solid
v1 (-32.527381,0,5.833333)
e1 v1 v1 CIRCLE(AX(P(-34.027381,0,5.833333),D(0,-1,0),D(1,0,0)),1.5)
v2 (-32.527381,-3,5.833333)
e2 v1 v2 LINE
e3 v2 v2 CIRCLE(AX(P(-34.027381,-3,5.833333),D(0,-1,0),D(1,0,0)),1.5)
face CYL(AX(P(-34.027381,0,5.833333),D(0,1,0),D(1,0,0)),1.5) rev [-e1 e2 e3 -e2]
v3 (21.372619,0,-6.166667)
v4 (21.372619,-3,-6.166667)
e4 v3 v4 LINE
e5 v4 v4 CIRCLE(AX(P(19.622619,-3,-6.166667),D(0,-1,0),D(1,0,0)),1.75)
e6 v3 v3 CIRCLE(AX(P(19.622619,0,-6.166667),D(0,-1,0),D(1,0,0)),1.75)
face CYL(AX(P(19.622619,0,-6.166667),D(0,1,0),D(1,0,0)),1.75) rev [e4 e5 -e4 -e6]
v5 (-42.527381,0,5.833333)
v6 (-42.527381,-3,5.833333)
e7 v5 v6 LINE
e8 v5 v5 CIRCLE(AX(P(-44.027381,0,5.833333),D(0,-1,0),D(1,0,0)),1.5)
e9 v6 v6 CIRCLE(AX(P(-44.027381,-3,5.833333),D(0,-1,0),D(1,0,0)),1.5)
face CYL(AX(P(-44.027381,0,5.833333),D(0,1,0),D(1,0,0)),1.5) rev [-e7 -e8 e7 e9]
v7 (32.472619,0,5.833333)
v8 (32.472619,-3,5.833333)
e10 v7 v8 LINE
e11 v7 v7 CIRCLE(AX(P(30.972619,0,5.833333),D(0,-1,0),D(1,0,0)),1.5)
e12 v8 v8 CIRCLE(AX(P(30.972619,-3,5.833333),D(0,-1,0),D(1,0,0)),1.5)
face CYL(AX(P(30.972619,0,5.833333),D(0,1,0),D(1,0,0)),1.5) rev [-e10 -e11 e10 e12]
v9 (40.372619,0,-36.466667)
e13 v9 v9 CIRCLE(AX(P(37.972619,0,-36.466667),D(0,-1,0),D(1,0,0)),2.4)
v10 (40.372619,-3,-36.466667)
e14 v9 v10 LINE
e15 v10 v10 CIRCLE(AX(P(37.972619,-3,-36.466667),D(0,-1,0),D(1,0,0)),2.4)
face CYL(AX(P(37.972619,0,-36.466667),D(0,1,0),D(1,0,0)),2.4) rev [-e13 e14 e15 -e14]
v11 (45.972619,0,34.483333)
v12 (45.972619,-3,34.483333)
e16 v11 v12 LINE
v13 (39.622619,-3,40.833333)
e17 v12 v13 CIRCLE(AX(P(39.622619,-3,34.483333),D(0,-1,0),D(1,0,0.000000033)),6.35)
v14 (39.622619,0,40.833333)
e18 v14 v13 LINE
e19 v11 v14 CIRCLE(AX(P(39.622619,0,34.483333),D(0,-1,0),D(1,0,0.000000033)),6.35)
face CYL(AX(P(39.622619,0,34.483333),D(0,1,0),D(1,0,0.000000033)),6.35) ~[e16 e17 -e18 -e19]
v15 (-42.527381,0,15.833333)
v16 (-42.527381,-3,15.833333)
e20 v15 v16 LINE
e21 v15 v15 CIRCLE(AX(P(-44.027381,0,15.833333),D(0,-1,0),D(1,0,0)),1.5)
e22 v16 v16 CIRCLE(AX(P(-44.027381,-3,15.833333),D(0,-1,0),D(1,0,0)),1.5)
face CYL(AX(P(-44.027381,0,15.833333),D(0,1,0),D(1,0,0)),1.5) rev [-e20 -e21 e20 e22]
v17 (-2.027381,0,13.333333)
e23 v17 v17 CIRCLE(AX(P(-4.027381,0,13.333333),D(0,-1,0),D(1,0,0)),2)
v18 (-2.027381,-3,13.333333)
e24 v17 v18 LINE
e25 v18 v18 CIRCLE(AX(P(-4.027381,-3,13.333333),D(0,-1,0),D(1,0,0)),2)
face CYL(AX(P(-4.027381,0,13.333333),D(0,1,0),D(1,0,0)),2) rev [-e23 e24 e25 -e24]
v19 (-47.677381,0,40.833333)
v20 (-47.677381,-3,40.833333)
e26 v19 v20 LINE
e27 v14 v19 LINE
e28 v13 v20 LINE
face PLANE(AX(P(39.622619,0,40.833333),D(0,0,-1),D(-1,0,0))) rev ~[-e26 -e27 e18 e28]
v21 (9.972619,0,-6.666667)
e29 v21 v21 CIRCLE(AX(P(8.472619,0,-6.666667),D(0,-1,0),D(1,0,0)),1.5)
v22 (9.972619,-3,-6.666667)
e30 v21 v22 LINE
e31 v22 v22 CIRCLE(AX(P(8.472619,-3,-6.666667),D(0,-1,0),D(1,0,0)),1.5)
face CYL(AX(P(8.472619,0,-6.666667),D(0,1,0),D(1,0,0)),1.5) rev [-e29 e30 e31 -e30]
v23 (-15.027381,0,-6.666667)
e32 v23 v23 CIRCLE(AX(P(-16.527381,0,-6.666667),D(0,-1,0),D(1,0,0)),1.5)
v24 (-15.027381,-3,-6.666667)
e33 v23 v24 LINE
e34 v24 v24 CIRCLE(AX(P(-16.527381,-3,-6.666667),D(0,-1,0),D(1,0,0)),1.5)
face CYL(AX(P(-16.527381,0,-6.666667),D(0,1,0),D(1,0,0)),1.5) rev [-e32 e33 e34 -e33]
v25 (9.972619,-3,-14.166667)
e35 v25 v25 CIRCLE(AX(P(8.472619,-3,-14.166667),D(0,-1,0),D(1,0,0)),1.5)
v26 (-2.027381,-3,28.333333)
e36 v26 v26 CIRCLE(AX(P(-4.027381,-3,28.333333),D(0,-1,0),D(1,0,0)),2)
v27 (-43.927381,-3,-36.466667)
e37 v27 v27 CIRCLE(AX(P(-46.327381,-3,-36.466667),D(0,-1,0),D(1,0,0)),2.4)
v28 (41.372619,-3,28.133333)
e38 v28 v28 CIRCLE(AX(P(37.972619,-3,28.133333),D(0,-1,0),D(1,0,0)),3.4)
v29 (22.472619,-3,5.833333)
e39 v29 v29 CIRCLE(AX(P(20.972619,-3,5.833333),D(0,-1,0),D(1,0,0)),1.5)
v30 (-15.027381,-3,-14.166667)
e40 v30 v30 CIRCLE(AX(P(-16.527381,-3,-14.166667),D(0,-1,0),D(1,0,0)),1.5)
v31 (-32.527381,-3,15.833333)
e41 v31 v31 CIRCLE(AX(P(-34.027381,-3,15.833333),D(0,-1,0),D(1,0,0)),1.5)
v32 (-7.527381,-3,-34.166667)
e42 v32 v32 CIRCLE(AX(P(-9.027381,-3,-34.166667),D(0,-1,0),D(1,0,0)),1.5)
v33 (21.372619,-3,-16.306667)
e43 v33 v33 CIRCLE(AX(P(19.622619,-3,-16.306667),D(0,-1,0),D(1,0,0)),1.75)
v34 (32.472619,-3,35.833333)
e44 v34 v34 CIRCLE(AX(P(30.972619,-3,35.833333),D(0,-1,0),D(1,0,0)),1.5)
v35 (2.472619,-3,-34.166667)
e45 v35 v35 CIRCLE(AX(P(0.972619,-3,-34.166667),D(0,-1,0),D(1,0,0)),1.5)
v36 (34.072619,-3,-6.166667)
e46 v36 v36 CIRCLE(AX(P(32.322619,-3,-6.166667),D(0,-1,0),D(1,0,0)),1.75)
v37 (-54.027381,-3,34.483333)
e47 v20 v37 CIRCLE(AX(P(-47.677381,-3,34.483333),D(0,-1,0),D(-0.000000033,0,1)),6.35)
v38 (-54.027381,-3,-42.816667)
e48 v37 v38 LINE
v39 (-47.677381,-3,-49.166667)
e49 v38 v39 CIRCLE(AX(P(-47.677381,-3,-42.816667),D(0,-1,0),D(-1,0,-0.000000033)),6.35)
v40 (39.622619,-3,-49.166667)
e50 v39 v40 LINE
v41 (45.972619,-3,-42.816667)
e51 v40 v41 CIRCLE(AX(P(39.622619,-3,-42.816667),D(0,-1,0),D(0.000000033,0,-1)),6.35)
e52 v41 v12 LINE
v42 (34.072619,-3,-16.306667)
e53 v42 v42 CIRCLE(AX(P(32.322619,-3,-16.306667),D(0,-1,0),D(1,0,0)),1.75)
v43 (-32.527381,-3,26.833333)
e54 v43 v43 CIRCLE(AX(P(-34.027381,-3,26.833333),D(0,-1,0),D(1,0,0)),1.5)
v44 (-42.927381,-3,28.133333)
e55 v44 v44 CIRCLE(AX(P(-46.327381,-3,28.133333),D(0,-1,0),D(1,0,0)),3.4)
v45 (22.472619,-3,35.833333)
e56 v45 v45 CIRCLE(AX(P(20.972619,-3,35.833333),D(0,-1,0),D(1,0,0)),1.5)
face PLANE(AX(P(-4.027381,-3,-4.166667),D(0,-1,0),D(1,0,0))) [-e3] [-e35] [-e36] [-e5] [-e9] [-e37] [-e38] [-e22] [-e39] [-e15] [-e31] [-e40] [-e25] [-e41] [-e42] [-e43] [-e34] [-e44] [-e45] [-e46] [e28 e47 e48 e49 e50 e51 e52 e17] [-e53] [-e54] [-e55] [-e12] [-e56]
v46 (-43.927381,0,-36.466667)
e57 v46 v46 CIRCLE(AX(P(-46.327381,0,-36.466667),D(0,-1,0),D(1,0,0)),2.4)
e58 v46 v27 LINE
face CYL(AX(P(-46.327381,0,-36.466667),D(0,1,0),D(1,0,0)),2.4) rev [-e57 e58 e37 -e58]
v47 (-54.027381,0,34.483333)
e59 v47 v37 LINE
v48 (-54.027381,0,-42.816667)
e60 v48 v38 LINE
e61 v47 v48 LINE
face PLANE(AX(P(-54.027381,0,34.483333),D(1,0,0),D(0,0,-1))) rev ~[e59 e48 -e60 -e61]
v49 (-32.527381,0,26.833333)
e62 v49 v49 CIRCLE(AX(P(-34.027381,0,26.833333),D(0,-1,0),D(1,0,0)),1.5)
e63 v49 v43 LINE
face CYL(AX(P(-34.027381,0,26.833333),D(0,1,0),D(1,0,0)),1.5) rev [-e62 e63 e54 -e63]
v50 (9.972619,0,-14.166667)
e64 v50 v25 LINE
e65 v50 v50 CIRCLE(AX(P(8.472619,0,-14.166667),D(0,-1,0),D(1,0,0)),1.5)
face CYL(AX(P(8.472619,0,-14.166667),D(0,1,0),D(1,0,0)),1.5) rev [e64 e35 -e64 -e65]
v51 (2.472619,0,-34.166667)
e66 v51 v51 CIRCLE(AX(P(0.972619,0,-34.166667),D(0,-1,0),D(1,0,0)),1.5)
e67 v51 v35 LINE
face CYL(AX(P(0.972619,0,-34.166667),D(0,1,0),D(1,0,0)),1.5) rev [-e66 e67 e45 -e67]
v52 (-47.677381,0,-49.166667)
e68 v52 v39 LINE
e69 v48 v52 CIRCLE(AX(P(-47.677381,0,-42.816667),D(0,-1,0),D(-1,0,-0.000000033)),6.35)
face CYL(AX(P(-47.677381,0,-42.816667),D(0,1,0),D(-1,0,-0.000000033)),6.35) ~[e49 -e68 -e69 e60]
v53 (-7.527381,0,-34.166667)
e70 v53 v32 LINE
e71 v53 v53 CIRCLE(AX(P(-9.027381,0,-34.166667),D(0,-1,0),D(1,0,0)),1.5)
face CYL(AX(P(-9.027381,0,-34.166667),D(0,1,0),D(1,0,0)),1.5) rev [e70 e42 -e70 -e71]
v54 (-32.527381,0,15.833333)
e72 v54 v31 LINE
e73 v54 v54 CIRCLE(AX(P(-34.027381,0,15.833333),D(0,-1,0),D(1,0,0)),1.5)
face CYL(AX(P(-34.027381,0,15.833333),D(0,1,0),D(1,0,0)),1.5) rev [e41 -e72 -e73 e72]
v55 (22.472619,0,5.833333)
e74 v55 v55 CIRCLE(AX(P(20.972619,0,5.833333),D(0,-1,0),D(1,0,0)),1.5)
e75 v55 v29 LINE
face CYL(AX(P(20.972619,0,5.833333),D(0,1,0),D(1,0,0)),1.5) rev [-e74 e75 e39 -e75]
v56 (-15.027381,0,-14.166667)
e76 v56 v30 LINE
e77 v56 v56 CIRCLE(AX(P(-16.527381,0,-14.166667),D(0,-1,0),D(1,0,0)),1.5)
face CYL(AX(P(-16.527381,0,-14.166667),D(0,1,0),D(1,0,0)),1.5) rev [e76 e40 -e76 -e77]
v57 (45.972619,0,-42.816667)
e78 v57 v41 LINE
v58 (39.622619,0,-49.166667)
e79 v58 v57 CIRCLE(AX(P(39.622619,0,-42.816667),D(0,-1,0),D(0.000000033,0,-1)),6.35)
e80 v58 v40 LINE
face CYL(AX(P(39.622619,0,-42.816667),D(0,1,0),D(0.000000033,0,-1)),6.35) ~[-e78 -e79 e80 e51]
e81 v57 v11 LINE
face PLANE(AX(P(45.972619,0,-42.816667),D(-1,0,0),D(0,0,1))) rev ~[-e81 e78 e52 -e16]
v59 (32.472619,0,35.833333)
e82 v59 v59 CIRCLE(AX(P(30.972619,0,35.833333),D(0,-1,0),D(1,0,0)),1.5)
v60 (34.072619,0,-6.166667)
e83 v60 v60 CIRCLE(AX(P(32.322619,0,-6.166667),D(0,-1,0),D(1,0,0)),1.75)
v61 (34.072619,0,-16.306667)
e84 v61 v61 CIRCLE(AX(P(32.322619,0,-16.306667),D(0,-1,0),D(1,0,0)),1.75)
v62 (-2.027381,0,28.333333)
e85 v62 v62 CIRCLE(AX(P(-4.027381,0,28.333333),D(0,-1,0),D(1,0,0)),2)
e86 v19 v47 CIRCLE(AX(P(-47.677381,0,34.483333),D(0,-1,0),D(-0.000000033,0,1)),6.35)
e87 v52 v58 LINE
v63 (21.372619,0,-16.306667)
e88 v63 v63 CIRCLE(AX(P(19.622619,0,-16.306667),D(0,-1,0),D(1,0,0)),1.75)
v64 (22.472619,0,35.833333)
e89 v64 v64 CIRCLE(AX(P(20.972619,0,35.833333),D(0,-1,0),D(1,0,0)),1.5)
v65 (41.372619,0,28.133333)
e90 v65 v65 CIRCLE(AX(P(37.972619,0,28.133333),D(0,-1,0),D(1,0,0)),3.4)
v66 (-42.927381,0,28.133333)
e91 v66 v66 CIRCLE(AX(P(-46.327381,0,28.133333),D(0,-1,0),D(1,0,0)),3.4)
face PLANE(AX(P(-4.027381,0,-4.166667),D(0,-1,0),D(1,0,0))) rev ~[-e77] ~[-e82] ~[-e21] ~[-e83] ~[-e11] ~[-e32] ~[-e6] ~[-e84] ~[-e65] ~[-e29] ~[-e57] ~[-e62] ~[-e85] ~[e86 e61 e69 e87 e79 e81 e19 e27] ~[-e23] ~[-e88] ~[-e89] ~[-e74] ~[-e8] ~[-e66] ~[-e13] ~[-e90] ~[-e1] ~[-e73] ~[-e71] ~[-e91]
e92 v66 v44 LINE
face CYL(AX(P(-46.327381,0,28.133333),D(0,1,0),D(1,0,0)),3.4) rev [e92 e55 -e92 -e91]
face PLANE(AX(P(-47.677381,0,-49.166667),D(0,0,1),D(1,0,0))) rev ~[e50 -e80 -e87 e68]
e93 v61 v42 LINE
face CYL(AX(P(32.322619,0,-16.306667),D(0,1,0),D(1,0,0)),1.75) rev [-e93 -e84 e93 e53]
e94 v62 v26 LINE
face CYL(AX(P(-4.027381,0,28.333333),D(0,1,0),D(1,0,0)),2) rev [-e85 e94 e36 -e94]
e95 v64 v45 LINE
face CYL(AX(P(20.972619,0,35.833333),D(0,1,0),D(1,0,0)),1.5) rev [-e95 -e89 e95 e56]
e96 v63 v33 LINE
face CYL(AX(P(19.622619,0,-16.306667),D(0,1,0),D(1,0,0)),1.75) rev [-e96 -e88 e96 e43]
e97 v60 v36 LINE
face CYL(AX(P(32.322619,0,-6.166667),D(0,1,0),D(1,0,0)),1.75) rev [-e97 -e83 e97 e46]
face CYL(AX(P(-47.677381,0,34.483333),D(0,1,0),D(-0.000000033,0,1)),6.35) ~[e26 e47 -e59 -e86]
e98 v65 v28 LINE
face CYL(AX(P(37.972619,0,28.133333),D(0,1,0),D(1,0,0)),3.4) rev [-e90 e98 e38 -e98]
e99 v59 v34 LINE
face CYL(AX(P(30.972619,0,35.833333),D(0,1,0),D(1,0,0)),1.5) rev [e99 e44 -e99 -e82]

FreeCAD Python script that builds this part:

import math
import FreeCAD as App
import Part
import Sketcher
Q = App.Units.Quantity

doc = App.newDocument("Part")
params = doc.addObject("Spreadsheet::Sheet", "Params")
for row, (alias, value) in enumerate([
    ("sketch1_diameter", "3 mm"),
    ("sketch1_diameter2", "4 mm"),
    ("sketch1_diameter3", "4.8 mm"),
    ("sketch1_diameter4", "3.5 mm"),
    ("sketch1_diameter5", "6.8 mm"),
    ("pad1_length", "3 mm"),
], start=1):
    params.set(f"A{row}", alias)
    params.set(f"B{row}", "=" + value)
    params.setAlias(f"B{row}", alias)

body = doc.addObject("PartDesign::Body", "Body")

# Sketch on XZ plane
sketch1 = body.newObject("Sketcher::SketchObject", "Sketch")
sketch1.AttachmentSupport = (doc.getObject("XZ_Plane"), [""])
sketch1.MapMode = "FlatFace"
sketch1.addGeometry(Part.LineSegment(App.Vector(46, -42.8, 0), App.Vector(46, 34.5, 0)), False)
sketch1.addGeometry(Part.ArcOfCircle(Part.Circle(App.Vector(39.6, 34.5, 0), App.Vector(0, 0, 1), 6.4), math.radians(0), math.radians(90)), False)
sketch1.addGeometry(Part.LineSegment(App.Vector(39.6, 40.8, 0), App.Vector(-47.7, 40.8, 0)), False)
sketch1.addGeometry(Part.ArcOfCircle(Part.Circle(App.Vector(-47.7, 34.5, 0), App.Vector(0, 0, 1), 6.4), math.radians(90), math.radians(180)), False)
sketch1.addGeometry(Part.LineSegment(App.Vector(-54, 34.5, 0), App.Vector(-54, -42.8, 0)), False)
sketch1.addGeometry(Part.ArcOfCircle(Part.Circle(App.Vector(-47.7, -42.8, 0), App.Vector(0, 0, 1), 6.4), math.radians(-180), math.radians(-90)), False)
sketch1.addGeometry(Part.LineSegment(App.Vector(-47.7, -49.2, 0), App.Vector(39.6, -49.2, 0)), False)
sketch1.addGeometry(Part.ArcOfCircle(Part.Circle(App.Vector(39.6, -42.8, 0), App.Vector(0, 0, 1), 6.4), math.radians(-90), math.radians(0)), False)
sketch1.addGeometry(Part.Circle(App.Vector(-46.3, -36.5, 0), App.Vector(0, 0, 1), 2.4), False)
sketch1.addGeometry(Part.Circle(App.Vector(-9, -34.2, 0), App.Vector(0, 0, 1), 1.5), False)
sketch1.addGeometry(Part.Circle(App.Vector(-16.5, -14.2, 0), App.Vector(0, 0, 1), 1.5), False)
sketch1.addGeometry(Part.Circle(App.Vector(-16.5, -6.7, 0), App.Vector(0, 0, 1), 1.5), False)
sketch1.addGeometry(Part.Circle(App.Vector(1, -34.2, 0), App.Vector(0, 0, 1), 1.5), False)
sketch1.addGeometry(Part.Circle(App.Vector(38, -36.5, 0), App.Vector(0, 0, 1), 2.4), False)
sketch1.addGeometry(Part.Circle(App.Vector(8.5, -14.2, 0), App.Vector(0, 0, 1), 1.5), False)
sketch1.addGeometry(Part.Circle(App.Vector(8.5, -6.7, 0), App.Vector(0, 0, 1), 1.5), False)
sketch1.addGeometry(Part.Circle(App.Vector(19.6, -16.3, 0), App.Vector(0, 0, 1), 1.8), False)
sketch1.addGeometry(Part.Circle(App.Vector(32.3, -16.3, 0), App.Vector(0, 0, 1), 1.8), False)
sketch1.addGeometry(Part.Circle(App.Vector(19.6, -6.2, 0), App.Vector(0, 0, 1), 1.8), False)
sketch1.addGeometry(Part.Circle(App.Vector(32.3, -6.2, 0), App.Vector(0, 0, 1), 1.8), False)
sketch1.addGeometry(Part.Circle(App.Vector(-44, 5.8, 0), App.Vector(0, 0, 1), 1.5), False)
sketch1.addGeometry(Part.Circle(App.Vector(-34, 5.8, 0), App.Vector(0, 0, 1), 1.5), False)
sketch1.addGeometry(Part.Circle(App.Vector(-44, 15.8, 0), App.Vector(0, 0, 1), 1.5), False)
sketch1.addGeometry(Part.Circle(App.Vector(-34, 15.8, 0), App.Vector(0, 0, 1), 1.5), False)
sketch1.addGeometry(Part.Circle(App.Vector(-34, 26.8, 0), App.Vector(0, 0, 1), 1.5), False)
sketch1.addGeometry(Part.Circle(App.Vector(-46.3, 28.1, 0), App.Vector(0, 0, 1), 3.4), False)
sketch1.addGeometry(Part.Circle(App.Vector(-4, 13.3, 0), App.Vector(0, 0, 1), 2), False)
sketch1.addGeometry(Part.Circle(App.Vector(21, 5.8, 0), App.Vector(0, 0, 1), 1.5), False)
sketch1.addGeometry(Part.Circle(App.Vector(31, 5.8, 0), App.Vector(0, 0, 1), 1.5), False)
sketch1.addGeometry(Part.Circle(App.Vector(-4, 28.3, 0), App.Vector(0, 0, 1), 2), False)
sketch1.addGeometry(Part.Circle(App.Vector(21, 35.8, 0), App.Vector(0, 0, 1), 1.5), False)
sketch1.addGeometry(Part.Circle(App.Vector(38, 28.1, 0), App.Vector(0, 0, 1), 3.4), False)
sketch1.addGeometry(Part.Circle(App.Vector(31, 35.8, 0), App.Vector(0, 0, 1), 1.5), False)
sketch1.addConstraint(Sketcher.Constraint("Tangent", 0, 2, 1, 1))
sketch1.addConstraint(Sketcher.Constraint("Tangent", 1, 2, 2, 1))
sketch1.addConstraint(Sketcher.Constraint("Tangent", 2, 2, 3, 1))
sketch1.addConstraint(Sketcher.Constraint("Tangent", 3, 2, 4, 1))
sketch1.addConstraint(Sketcher.Constraint("Tangent", 4, 2, 5, 1))
sketch1.addConstraint(Sketcher.Constraint("Tangent", 5, 2, 6, 1))
sketch1.addConstraint(Sketcher.Constraint("Tangent", 6, 2, 7, 1))
sketch1.addConstraint(Sketcher.Constraint("Tangent", 7, 2, 0, 1))
sketch1.addConstraint(Sketcher.Constraint("Vertical", 0))
sketch1.addConstraint(Sketcher.Constraint("Horizontal", 2))
sketch1.addConstraint(Sketcher.Constraint("Vertical", 4))
sketch1.addConstraint(Sketcher.Constraint("Horizontal", 6))
sketch1.addConstraint(Sketcher.Constraint("Equal", 1, 3))
sketch1.addConstraint(Sketcher.Constraint("Equal", 3, 5))
sketch1.addConstraint(Sketcher.Constraint("Equal", 5, 7))
sketch1.addConstraint(Sketcher.Constraint("Equal", 9, 10))
sketch1.addConstraint(Sketcher.Constraint("Equal", 10, 11))
sketch1.addConstraint(Sketcher.Constraint("Equal", 11, 12))
sketch1.addConstraint(Sketcher.Constraint("Equal", 8, 13))
sketch1.addConstraint(Sketcher.Constraint("Equal", 12, 14))
sketch1.addConstraint(Sketcher.Constraint("Equal", 14, 15))
sketch1.addConstraint(Sketcher.Constraint("Equal", 16, 17))
sketch1.addConstraint(Sketcher.Constraint("Equal", 17, 18))
sketch1.addConstraint(Sketcher.Constraint("Equal", 18, 19))
sketch1.addConstraint(Sketcher.Constraint("Equal", 15, 20))
sketch1.addConstraint(Sketcher.Constraint("Equal", 20, 21))
sketch1.addConstraint(Sketcher.Constraint("Equal", 21, 22))
sketch1.addConstraint(Sketcher.Constraint("Equal", 22, 23))
sketch1.addConstraint(Sketcher.Constraint("Equal", 23, 24))
sketch1.addConstraint(Sketcher.Constraint("Equal", 24, 27))
sketch1.addConstraint(Sketcher.Constraint("Equal", 27, 28))
sketch1.addConstraint(Sketcher.Constraint("Equal", 26, 29))
sketch1.addConstraint(Sketcher.Constraint("Equal", 28, 30))
sketch1.addConstraint(Sketcher.Constraint("Equal", 25, 31))
sketch1.addConstraint(Sketcher.Constraint("Equal", 30, 32))
sketch1.addConstraint(Sketcher.Constraint("Horizontal", 9, 3, 12, 3))
sketch1.addConstraint(Sketcher.Constraint("Horizontal", 8, 3, 13, 3))
sketch1.addConstraint(Sketcher.Constraint("Horizontal", 10, 3, 14, 3))
sketch1.addConstraint(Sketcher.Constraint("Horizontal", 11, 3, 15, 3))
sketch1.addConstraint(Sketcher.Constraint("Horizontal", 16, 3, 17, 3))
sketch1.addConstraint(Sketcher.Constraint("Horizontal", 18, 3, 19, 3))
sketch1.addConstraint(Sketcher.Constraint("Horizontal", 20, 3, 21, 3))
sketch1.addConstraint(Sketcher.Constraint("Horizontal", 22, 3, 23, 3))
sketch1.addConstraint(Sketcher.Constraint("Horizontal", 21, 3, 27, 3))
sketch1.addConstraint(Sketcher.Constraint("Horizontal", 27, 3, 28, 3))
sketch1.addConstraint(Sketcher.Constraint("Horizontal", 25, 3, 31, 3))
sketch1.addConstraint(Sketcher.Constraint("Horizontal", 30, 3, 32, 3))
sketch1.addConstraint(Sketcher.Constraint("Vertical", 10, 3, 11, 3))
sketch1.addConstraint(Sketcher.Constraint("Vertical", 14, 3, 15, 3))
sketch1.addConstraint(Sketcher.Constraint("Vertical", 16, 3, 18, 3))
sketch1.addConstraint(Sketcher.Constraint("Vertical", 17, 3, 19, 3))
sketch1.addConstraint(Sketcher.Constraint("Vertical", 20, 3, 22, 3))
sketch1.addConstraint(Sketcher.Constraint("Vertical", 21, 3, 23, 3))
sketch1.addConstraint(Sketcher.Constraint("Vertical", 23, 3, 24, 3))
sketch1.addConstraint(Sketcher.Constraint("Vertical", 8, 3, 25, 3))
sketch1.addConstraint(Sketcher.Constraint("Vertical", 26, 3, 29, 3))
sketch1.addConstraint(Sketcher.Constraint("Vertical", 27, 3, 30, 3))
sketch1.addConstraint(Sketcher.Constraint("Vertical", 13, 3, 31, 3))
sketch1.addConstraint(Sketcher.Constraint("Vertical", 28, 3, 32, 3))
sketch1.addConstraint(Sketcher.Constraint("Diameter", 9, Q("3 mm")))
sketch1.addConstraint(Sketcher.Constraint("Diameter", 26, Q("4 mm")))
sketch1.addConstraint(Sketcher.Constraint("Diameter", 8, Q("4.8 mm")))
sketch1.addConstraint(Sketcher.Constraint("Diameter", 16, Q("3.5 mm")))
sketch1.addConstraint(Sketcher.Constraint("Diameter", 25, Q("6.8 mm")))
sketch1.addConstraint(Sketcher.Constraint("Radius", 1, Q("6.35 mm")))
sketch1.addConstraint(Sketcher.Constraint("DistanceX", 2, 2, 2, 1, Q("87.3 mm")))
sketch1.addConstraint(Sketcher.Constraint("DistanceY", 0, 1, 0, 2, Q("77.3 mm")))
sketch1.addConstraint(Sketcher.Constraint("DistanceY", 9, 3, 10, 3, Q("20 mm")))
sketch1.addConstraint(Sketcher.Constraint("DistanceX", 9, 3, 12, 3, Q("10 mm")))
sketch1.addConstraint(Sketcher.Constraint("DistanceX", 12, 3, 13, 3, Q("37 mm")))
sketch1.addConstraint(Sketcher.Constraint("DistanceX", 10, 3, 14, 3, Q("25 mm")))
sketch1.addConstraint(Sketcher.Constraint("DistanceX", 16, 3, 7, 3, Q("20 mm")))
sketch1.addConstraint(Sketcher.Constraint("DistanceY", 14, 3, 18, 3, Q("8 mm")))
sketch1.addConstraint(Sketcher.Constraint("DistanceY", 10, 3, 20, 3, Q("20 mm")))
sketch1.addConstraint(Sketcher.Constraint("DistanceX", 20, 3, 21, 3, Q("10 mm")))
sketch1.addConstraint(Sketcher.Constraint("DistanceY", 20, 3, 22, 3, Q("10 mm")))
sketch1.addConstraint(Sketcher.Constraint("DistanceY", 23, 3, 24, 3, Q("11 mm")))
sketch1.addConstraint(Sketcher.Constraint("DistanceY", 11, 3, 26, 3, Q("20 mm")))
sketch1.addConstraint(Sketcher.Constraint("DistanceX", 23, 3, 26, 3, Q("30 mm")))
sketch1.addConstraint(Sketcher.Constraint("DistanceX", 27, 3, 28, 3, Q("10 mm")))
sketch1.addConstraint(Sketcher.Constraint("DistanceY", 26, 3, 29, 3, Q("15 mm")))
sketch1.addConstraint(Sketcher.Constraint("DistanceX", 29, 3, 27, 3, Q("25 mm")))
sketch1.addConstraint(Sketcher.Constraint("DistanceY", 27, 3, 30, 3, Q("30 mm")))
sketch1.addConstraint(Sketcher.Constraint("DistanceX", 30, 3, 31, 3, Q("17 mm")))
sketch1.addConstraint(Sketcher.Constraint("DistanceX", 31, 3, 0, 2, Q("8 mm")))
sketch1.addConstraint(Sketcher.Constraint("DistanceY", 32, 3, 1, 2, Q("5 mm")))
sketch1.addConstraint(Sketcher.Constraint("DistanceX", 8, 3, 9, 3, Q("37.3 mm")))
sketch1.addConstraint(Sketcher.Constraint("DistanceY", 8, 3, 9, 3, Q("2.3 mm")))
sketch1.addConstraint(Sketcher.Constraint("DistanceX", 10, 3, 9, 3, Q("7.5 mm")))
sketch1.addConstraint(Sketcher.Constraint("DistanceY", 10, 3, 11, 3, Q("7.5 mm")))
sketch1.addConstraint(Sketcher.Constraint("DistanceX", 16, 3, 17, 3, Q("12.7 mm")))
sketch1.addConstraint(Sketcher.Constraint("DistanceY", 24, 3, 25, 3, Q("1.3 mm")))
sketch1.addConstraint(Sketcher.Constraint("DistanceY", 16, 3, 14, 3, Q("2.14 mm")))
sketch1.addConstraint(Sketcher.Constraint("DistanceX", -1, 1, 1, 3, Q("39.622619 mm")))
sketch1.addConstraint(Sketcher.Constraint("DistanceY", -1, 1, 1, 3, Q("34.483333 mm")))
sketch1.setExpression("Constraints[59]", "Params.sketch1_diameter")
sketch1.setExpression("Constraints[60]", "Params.sketch1_diameter2")
sketch1.setExpression("Constraints[61]", "Params.sketch1_diameter3")
sketch1.setExpression("Constraints[62]", "Params.sketch1_diameter4")
sketch1.setExpression("Constraints[63]", "Params.sketch1_diameter5")
pad1 = body.newObject("PartDesign::Pad", "Pad")
pad1.Profile = sketch1
pad1.setExpression("Length", "Params.pad1_length")

doc.recompute()
